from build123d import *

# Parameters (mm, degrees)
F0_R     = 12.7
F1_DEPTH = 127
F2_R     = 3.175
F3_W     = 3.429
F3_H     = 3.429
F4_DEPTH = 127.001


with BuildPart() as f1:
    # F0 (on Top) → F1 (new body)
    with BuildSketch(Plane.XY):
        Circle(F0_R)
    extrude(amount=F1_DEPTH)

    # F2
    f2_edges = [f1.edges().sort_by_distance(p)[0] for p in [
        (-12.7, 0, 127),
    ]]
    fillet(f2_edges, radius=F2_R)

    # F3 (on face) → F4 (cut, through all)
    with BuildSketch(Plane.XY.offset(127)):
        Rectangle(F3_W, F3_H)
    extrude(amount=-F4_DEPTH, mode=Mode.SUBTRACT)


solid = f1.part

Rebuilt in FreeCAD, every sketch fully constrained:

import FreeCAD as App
import Part
import Sketcher
Q = App.Units.Quantity


def edges_at(feature, points):
    """Names of the edges that pass closest to the given points."""
    edges = feature.Shape.Edges
    near = lambda p: min(range(len(edges)), key=lambda i: edges[i].distToShape(Part.Vertex(*p))[0])
    return sorted({f"Edge{near(p) + 1}" for p in points})


def add_polygon(sketch, points):
    """Adds a closed chain of lines whose ends are joined by coincident constraints."""
    first, n = sketch.GeometryCount, len(points)
    for a, b in zip(points, points[1:] + points[:1]):
        sketch.addGeometry(Part.LineSegment(App.Vector(*a, 0), App.Vector(*b, 0)), False)
    for i in range(n):
        sketch.addConstraint(Sketcher.Constraint("Coincident", first + i, 2, first + (i + 1) % n, 1))

doc = App.newDocument("Part")
body = doc.addObject("PartDesign::Body", "Body")

sketch1 = body.newObject("Sketcher::SketchObject", "Sketch")
sketch1.AttachmentSupport = (doc.getObject("XY_Plane"), [""])
sketch1.MapMode = "FlatFace"
sketch1.addGeometry(Part.Circle(App.Vector(0, 0, 0), App.Vector(0, 0, 1), 13), False)
sketch1.addConstraint([
    Sketcher.Constraint("Coincident", 0, 3, -1, 1),
    Sketcher.Constraint("Diameter", 0, Q("1 in")),
])
pad1 = body.newObject("PartDesign::Pad", "Pad")
pad1.Profile = sketch1
pad1.Length = Q("5 in")
doc.recompute()

fillet = body.newObject("PartDesign::Fillet", "Fillet")
fillet.Base = (pad1, edges_at(pad1, [(-12.7, 0, 127)]))
fillet.Radius = Q("0.125 in")

sketch2 = body.newObject("Sketcher::SketchObject", "Sketch001")
sketch2.AttachmentSupport = (doc.getObject("XY_Plane"), [""])
sketch2.MapMode = "FlatFace"
sketch2.AttachmentOffset = App.Placement(App.Vector(0, 0, 5 * 25.4), App.Rotation())
add_polygon(sketch2, [(-1.7, 1.7), (-1.7, -1.7), (1.7, -1.7), (1.7, 1.7)])
sketch2.addConstraint([
    Sketcher.Constraint("Vertical", 0),
    Sketcher.Constraint("Horizontal", 1),
    Sketcher.Constraint("Vertical", 2),
    Sketcher.Constraint("Horizontal", 3),
    Sketcher.Constraint("Symmetric", 0, 2, 2, 2, -1, 1),
    Sketcher.Constraint("Equal", 3, 0),
    Sketcher.Constraint("DistanceX", 1, 1, 1, 2, Q("0.135 in")),
])
pocket1 = body.newObject("PartDesign::Pocket", "Pocket")
pocket1.Profile = sketch2
pocket1.Type = "ThroughAll"

doc.recompute()
